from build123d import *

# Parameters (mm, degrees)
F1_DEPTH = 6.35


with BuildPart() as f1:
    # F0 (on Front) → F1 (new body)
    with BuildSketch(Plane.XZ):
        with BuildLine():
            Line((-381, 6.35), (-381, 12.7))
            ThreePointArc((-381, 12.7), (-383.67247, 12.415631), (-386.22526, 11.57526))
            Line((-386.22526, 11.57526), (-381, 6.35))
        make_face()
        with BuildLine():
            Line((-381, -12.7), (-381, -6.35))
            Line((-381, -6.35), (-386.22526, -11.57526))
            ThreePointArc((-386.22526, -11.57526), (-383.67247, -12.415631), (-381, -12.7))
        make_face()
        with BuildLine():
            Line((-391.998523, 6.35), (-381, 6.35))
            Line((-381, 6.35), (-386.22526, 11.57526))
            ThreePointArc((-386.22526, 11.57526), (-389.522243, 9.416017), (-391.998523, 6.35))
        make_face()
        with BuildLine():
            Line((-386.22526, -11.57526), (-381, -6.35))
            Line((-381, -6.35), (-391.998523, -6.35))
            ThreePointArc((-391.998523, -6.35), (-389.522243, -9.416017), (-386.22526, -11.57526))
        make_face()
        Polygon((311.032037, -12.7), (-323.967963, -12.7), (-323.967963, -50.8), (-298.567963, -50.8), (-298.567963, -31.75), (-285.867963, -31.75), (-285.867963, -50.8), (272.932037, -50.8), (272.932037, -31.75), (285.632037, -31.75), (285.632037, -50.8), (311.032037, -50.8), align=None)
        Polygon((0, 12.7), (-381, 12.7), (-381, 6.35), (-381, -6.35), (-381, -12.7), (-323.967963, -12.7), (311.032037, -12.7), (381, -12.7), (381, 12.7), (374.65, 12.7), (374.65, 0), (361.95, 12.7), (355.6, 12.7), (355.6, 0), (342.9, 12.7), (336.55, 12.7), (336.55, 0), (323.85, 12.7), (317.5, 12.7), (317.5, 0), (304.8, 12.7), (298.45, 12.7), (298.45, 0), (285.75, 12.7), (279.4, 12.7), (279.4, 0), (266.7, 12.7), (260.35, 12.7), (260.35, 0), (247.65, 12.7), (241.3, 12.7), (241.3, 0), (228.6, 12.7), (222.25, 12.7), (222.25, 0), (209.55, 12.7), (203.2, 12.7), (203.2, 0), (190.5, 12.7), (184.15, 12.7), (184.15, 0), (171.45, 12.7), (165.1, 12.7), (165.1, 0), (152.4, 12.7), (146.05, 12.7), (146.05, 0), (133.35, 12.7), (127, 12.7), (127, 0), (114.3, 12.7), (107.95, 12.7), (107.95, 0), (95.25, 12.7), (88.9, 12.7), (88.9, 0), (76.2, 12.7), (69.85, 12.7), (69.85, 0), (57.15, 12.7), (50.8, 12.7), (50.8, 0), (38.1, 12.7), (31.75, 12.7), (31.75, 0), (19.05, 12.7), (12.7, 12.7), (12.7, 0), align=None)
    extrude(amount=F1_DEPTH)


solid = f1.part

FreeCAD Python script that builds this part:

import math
import FreeCAD as App
import Part
import Sketcher
Q = App.Units.Quantity

doc = App.newDocument("Part")
params = doc.addObject("Spreadsheet::Sheet", "Params")
for row, (alias, value) in enumerate([
    ("sketch1_radius", "0.4999999 in"),
    ("sketch1_width", "22 in"),
    ("sketch1_width2", "15 in"),
    ("sketch1_height", "1.5 in"),
    ("sketch1_height2", "0.75 in"),
    ("pad1_length", "0.25 in"),
], start=1):
    params.set(f"A{row}", alias)
    params.set(f"B{row}", "=" + value)
    params.setAlias(f"B{row}", alias)

body = doc.addObject("PartDesign::Body", "Body")

sketch1 = doc.addObject("Sketcher::SketchObject", "Sketch")
body.addObject(sketch1)
sketch1.AttachmentSupport = (doc.XZ_Plane, [""])
sketch1.MapMode = "FlatFace"
sketch1.addGeometry(Part.ArcOfCircle(Part.Circle(App.Vector(-381, 0, 0), App.Vector(0, 0, 1), 13), math.radians(90), math.radians(114)), False)
sketch1.addGeometry(Part.ArcOfCircle(Part.Circle(App.Vector(-381, 0, 0), App.Vector(0, 0, 1), 13), math.radians(114), math.radians(150)), False)
sketch1.addGeometry(Part.LineSegment(App.Vector(-392, 6, 0), App.Vector(-381, 6, 0)), False)
sketch1.addGeometry(Part.LineSegment(App.Vector(-381, 6, 0), App.Vector(-381, -6, 0)), False)
sketch1.addGeometry(Part.LineSegment(App.Vector(-381, -6, 0), App.Vector(-392, -6, 0)), False)
sketch1.addGeometry(Part.ArcOfCircle(Part.Circle(App.Vector(-381, 0, 0), App.Vector(0, 0, 1), 13), math.radians(-150), math.radians(-114)), False)
sketch1.addGeometry(Part.ArcOfCircle(Part.Circle(App.Vector(-381, 0, 0), App.Vector(0, 0, 1), 13), math.radians(-114), math.radians(-90)), False)
sketch1.addGeometry(Part.LineSegment(App.Vector(-381, -13, 0), App.Vector(-324, -13, 0)), False)
sketch1.addGeometry(Part.LineSegment(App.Vector(-324, -13, 0), App.Vector(-324, -51, 0)), False)
sketch1.addGeometry(Part.LineSegment(App.Vector(-324, -51, 0), App.Vector(-299, -51, 0)), False)
sketch1.addGeometry(Part.LineSegment(App.Vector(-299, -51, 0), App.Vector(-299, -32, 0)), False)
sketch1.addGeometry(Part.LineSegment(App.Vector(-299, -32, 0), App.Vector(-286, -32, 0)), False)
sketch1.addGeometry(Part.LineSegment(App.Vector(-286, -32, 0), App.Vector(-286, -51, 0)), False)
sketch1.addGeometry(Part.LineSegment(App.Vector(-286, -51, 0), App.Vector(273, -51, 0)), False)
sketch1.addGeometry(Part.LineSegment(App.Vector(273, -51, 0), App.Vector(273, -32, 0)), False)
sketch1.addGeometry(Part.LineSegment(App.Vector(273, -32, 0), App.Vector(286, -32, 0)), False)
sketch1.addGeometry(Part.LineSegment(App.Vector(286, -32, 0), App.Vector(286, -51, 0)), False)
sketch1.addGeometry(Part.LineSegment(App.Vector(286, -51, 0), App.Vector(311, -51, 0)), False)
sketch1.addGeometry(Part.LineSegment(App.Vector(311, -51, 0), App.Vector(311, -13, 0)), False)
sketch1.addGeometry(Part.LineSegment(App.Vector(311, -13, 0), App.Vector(381, -13, 0)), False)
sketch1.addGeometry(Part.LineSegment(App.Vector(381, -13, 0), App.Vector(381, 13, 0)), False)
sketch1.addGeometry(Part.LineSegment(App.Vector(381, 13, 0), App.Vector(375, 13, 0)), False)
sketch1.addGeometry(Part.LineSegment(App.Vector(375, 13, 0), App.Vector(375, 0, 0)), False)
sketch1.addGeometry(Part.LineSegment(App.Vector(375, 0, 0), App.Vector(362, 13, 0)), False)
sketch1.addGeometry(Part.LineSegment(App.Vector(362, 13, 0), App.Vector(356, 13, 0)), False)
sketch1.addGeometry(Part.LineSegment(App.Vector(356, 13, 0), App.Vector(356, 0, 0)), False)
sketch1.addGeometry(Part.LineSegment(App.Vector(356, 0, 0), App.Vector(343, 13, 0)), False)
sketch1.addGeometry(Part.LineSegment(App.Vector(343, 13, 0), App.Vector(337, 13, 0)), False)
sketch1.addGeometry(Part.LineSegment(App.Vector(337, 13, 0), App.Vector(337, 0, 0)), False)
sketch1.addGeometry(Part.LineSegment(App.Vector(337, 0, 0), App.Vector(324, 13, 0)), False)
sketch1.addGeometry(Part.LineSegment(App.Vector(324, 13, 0), App.Vector(318, 13, 0)), False)
sketch1.addGeometry(Part.LineSegment(App.Vector(318, 13, 0), App.Vector(318, 0, 0)), False)
sketch1.addGeometry(Part.LineSegment(App.Vector(318, 0, 0), App.Vector(305, 13, 0)), False)
sketch1.addGeometry(Part.LineSegment(App.Vector(305, 13, 0), App.Vector(298, 13, 0)), False)
sketch1.addGeometry(Part.LineSegment(App.Vector(298, 13, 0), App.Vector(298, 0, 0)), False)
sketch1.addGeometry(Part.LineSegment(App.Vector(298, 0, 0), App.Vector(286, 13, 0)), False)
sketch1.addGeometry(Part.LineSegment(App.Vector(286, 13, 0), App.Vector(279, 13, 0)), False)
sketch1.addGeometry(Part.LineSegment(App.Vector(279, 13, 0), App.Vector(279, 0, 0)), False)
sketch1.addGeometry(Part.LineSegment(App.Vector(279, 0, 0), App.Vector(267, 13, 0)), False)
sketch1.addGeometry(Part.LineSegment(App.Vector(267, 13, 0), App.Vector(260, 13, 0)), False)
sketch1.addGeometry(Part.LineSegment(App.Vector(260, 13, 0), App.Vector(260, 0, 0)), False)
sketch1.addGeometry(Part.LineSegment(App.Vector(260, 0, 0), App.Vector(248, 13, 0)), False)
sketch1.addGeometry(Part.LineSegment(App.Vector(248, 13, 0), App.Vector(241, 13, 0)), False)
sketch1.addGeometry(Part.LineSegment(App.Vector(241, 13, 0), App.Vector(241, 0, 0)), False)
sketch1.addGeometry(Part.LineSegment(App.Vector(241, 0, 0), App.Vector(229, 13, 0)), False)
sketch1.addGeometry(Part.LineSegment(App.Vector(229, 13, 0), App.Vector(222, 13, 0)), False)
sketch1.addGeometry(Part.LineSegment(App.Vector(222, 13, 0), App.Vector(222, 0, 0)), False)
sketch1.addGeometry(Part.LineSegment(App.Vector(222, 0, 0), App.Vector(210, 13, 0)), False)
sketch1.addGeometry(Part.LineSegment(App.Vector(210, 13, 0), App.Vector(203, 13, 0)), False)
sketch1.addGeometry(Part.LineSegment(App.Vector(203, 13, 0), App.Vector(203, 0, 0)), False)
sketch1.addGeometry(Part.LineSegment(App.Vector(203, 0, 0), App.Vector(190, 13, 0)), False)
sketch1.addGeometry(Part.LineSegment(App.Vector(190, 13, 0), App.Vector(184, 13, 0)), False)
sketch1.addGeometry(Part.LineSegment(App.Vector(184, 13, 0), App.Vector(184, 0, 0)), False)
sketch1.addGeometry(Part.LineSegment(App.Vector(184, 0, 0), App.Vector(171, 13, 0)), False)
sketch1.addGeometry(Part.LineSegment(App.Vector(171, 13, 0), App.Vector(165, 13, 0)), False)
sketch1.addGeometry(Part.LineSegment(App.Vector(165, 13, 0), App.Vector(165, 0, 0)), False)
sketch1.addGeometry(Part.LineSegment(App.Vector(165, 0, 0), App.Vector(152, 13, 0)), False)
sketch1.addGeometry(Part.LineSegment(App.Vector(152, 13, 0), App.Vector(146, 13, 0)), False)
sketch1.addGeometry(Part.LineSegment(App.Vector(146, 13, 0), App.Vector(146, 0, 0)), False)
sketch1.addGeometry(Part.LineSegment(App.Vector(146, 0, 0), App.Vector(133, 13, 0)), False)
sketch1.addGeometry(Part.LineSegment(App.Vector(133, 13, 0), App.Vector(127, 13, 0)), False)
sketch1.addGeometry(Part.LineSegment(App.Vector(127, 13, 0), App.Vector(127, 0, 0)), False)
sketch1.addGeometry(Part.LineSegment(App.Vector(127, 0, 0), App.Vector(114, 13, 0)), False)
sketch1.addGeometry(Part.LineSegment(App.Vector(114, 13, 0), App.Vector(108, 13, 0)), False)
sketch1.addGeometry(Part.LineSegment(App.Vector(108, 13, 0), App.Vector(108, 0, 0)), False)
sketch1.addGeometry(Part.LineSegment(App.Vector(108, 0, 0), App.Vector(95, 13, 0)), False)
sketch1.addGeometry(Part.LineSegment(App.Vector(95, 13, 0), App.Vector(89, 13, 0)), False)
sketch1.addGeometry(Part.LineSegment(App.Vector(89, 13, 0), App.Vector(89, 0, 0)), False)
sketch1.addGeometry(Part.LineSegment(App.Vector(89, 0, 0), App.Vector(76, 13, 0)), False)
sketch1.addGeometry(Part.LineSegment(App.Vector(76, 13, 0), App.Vector(70, 13, 0)), False)
sketch1.addGeometry(Part.LineSegment(App.Vector(70, 13, 0), App.Vector(70, 0, 0)), False)
sketch1.addGeometry(Part.LineSegment(App.Vector(70, 0, 0), App.Vector(57, 13, 0)), False)
sketch1.addGeometry(Part.LineSegment(App.Vector(57, 13, 0), App.Vector(51, 13, 0)), False)
sketch1.addGeometry(Part.LineSegment(App.Vector(51, 13, 0), App.Vector(51, 0, 0)), False)
sketch1.addGeometry(Part.LineSegment(App.Vector(51, 0, 0), App.Vector(38, 13, 0)), False)
sketch1.addGeometry(Part.LineSegment(App.Vector(38, 13, 0), App.Vector(32, 13, 0)), False)
sketch1.addGeometry(Part.LineSegment(App.Vector(32, 13, 0), App.Vector(32, 0, 0)), False)
sketch1.addGeometry(Part.LineSegment(App.Vector(32, 0, 0), App.Vector(19, 13, 0)), False)
sketch1.addGeometry(Part.LineSegment(App.Vector(19, 13, 0), App.Vector(13, 13, 0)), False)
sketch1.addGeometry(Part.LineSegment(App.Vector(13, 13, 0), App.Vector(13, 0, 0)), False)
sketch1.addGeometry(Part.LineSegment(App.Vector(13, 0, 0), App.Vector(0, 13, 0)), False)
sketch1.addGeometry(Part.LineSegment(App.Vector(0, 13, 0), App.Vector(-381, 13, 0)), False)
sketch1.addConstraint(Sketcher.Constraint("Tangent", 0, 2, 1, 1))
sketch1.addConstraint(Sketcher.Constraint("Coincident", 1, 2, 2, 1))
sketch1.addConstraint(Sketcher.Constraint("Coincident", 2, 2, 3, 1))
sketch1.addConstraint(Sketcher.Constraint("Coincident", 3, 2, 4, 1))
sketch1.addConstraint(Sketcher.Constraint("Coincident", 4, 2, 5, 1))
sketch1.addConstraint(Sketcher.Constraint("Tangent", 5, 2, 6, 1))
sketch1.addConstraint(Sketcher.Constraint("Tangent", 6, 2, 7, 1))
sketch1.addConstraint(Sketcher.Constraint("Coincident", 7, 2, 8, 1))
sketch1.addConstraint(Sketcher.Constraint("Coincident", 8, 2, 9, 1))
sketch1.addConstraint(Sketcher.Constraint("Coincident", 9, 2, 10, 1))
sketch1.addConstraint(Sketcher.Constraint("Coincident", 10, 2, 11, 1))
sketch1.addConstraint(Sketcher.Constraint("Coincident", 11, 2, 12, 1))
sketch1.addConstraint(Sketcher.Constraint("Coincident", 12, 2, 13, 1))
sketch1.addConstraint(Sketcher.Constraint("Coincident", 13, 2, 14, 1))
sketch1.addConstraint(Sketcher.Constraint("Coincident", 14, 2, 15, 1))
sketch1.addConstraint(Sketcher.Constraint("Coincident", 15, 2, 16, 1))
sketch1.addConstraint(Sketcher.Constraint("Coincident", 16, 2, 17, 1))
sketch1.addConstraint(Sketcher.Constraint("Coincident", 17, 2, 18, 1))
sketch1.addConstraint(Sketcher.Constraint("Coincident", 18, 2, 19, 1))
sketch1.addConstraint(Sketcher.Constraint("Coincident", 19, 2, 20, 1))
sketch1.addConstraint(Sketcher.Constraint("Coincident", 20, 2, 21, 1))
sketch1.addConstraint(Sketcher.Constraint("Coincident", 21, 2, 22, 1))
sketch1.addConstraint(Sketcher.Constraint("Coincident", 22, 2, 23, 1))
sketch1.addConstraint(Sketcher.Constraint("Coincident", 23, 2, 24, 1))
sketch1.addConstraint(Sketcher.Constraint("Coincident", 24, 2, 25, 1))
sketch1.addConstraint(Sketcher.Constraint("Coincident", 25, 2, 26, 1))
sketch1.addConstraint(Sketcher.Constraint("Coincident", 26, 2, 27, 1))
sketch1.addConstraint(Sketcher.Constraint("Coincident", 27, 2, 28, 1))
sketch1.addConstraint(Sketcher.Constraint("Coincident", 28, 2, 29, 1))
sketch1.addConstraint(Sketcher.Constraint("Coincident", 29, 2, 30, 1))
sketch1.addConstraint(Sketcher.Constraint("Coincident", 30, 2, 31, 1))
sketch1.addConstraint(Sketcher.Constraint("Coincident", 31, 2, 32, 1))
sketch1.addConstraint(Sketcher.Constraint("Coincident", 32, 2, 33, 1))
sketch1.addConstraint(Sketcher.Constraint("Coincident", 33, 2, 34, 1))
sketch1.addConstraint(Sketcher.Constraint("Coincident", 34, 2, 35, 1))
sketch1.addConstraint(Sketcher.Constraint("Coincident", 35, 2, 36, 1))
sketch1.addConstraint(Sketcher.Constraint("Coincident", 36, 2, 37, 1))
sketch1.addConstraint(Sketcher.Constraint("Coincident", 37, 2, 38, 1))
sketch1.addConstraint(Sketcher.Constraint("Coincident", 38, 2, 39, 1))
sketch1.addConstraint(Sketcher.Constraint("Coincident", 39, 2, 40, 1))
sketch1.addConstraint(Sketcher.Constraint("Coincident", 40, 2, 41, 1))
sketch1.addConstraint(Sketcher.Constraint("Coincident", 41, 2, 42, 1))
sketch1.addConstraint(Sketcher.Constraint("Coincident", 42, 2, 43, 1))
sketch1.addConstraint(Sketcher.Constraint("Coincident", 43, 2, 44, 1))
sketch1.addConstraint(Sketcher.Constraint("Coincident", 44, 2, 45, 1))
sketch1.addConstraint(Sketcher.Constraint("Coincident", 45, 2, 46, 1))
sketch1.addConstraint(Sketcher.Constraint("Coincident", 46, 2, 47, 1))
sketch1.addConstraint(Sketcher.Constraint("Coincident", 47, 2, 48, 1))
sketch1.addConstraint(Sketcher.Constraint("Coincident", 48, 2, 49, 1))
sketch1.addConstraint(Sketcher.Constraint("Coincident", 49, 2, 50, 1))
sketch1.addConstraint(Sketcher.Constraint("Coincident", 50, 2, 51, 1))
sketch1.addConstraint(Sketcher.Constraint("Coincident", 51, 2, 52, 1))
sketch1.addConstraint(Sketcher.Constraint("Coincident", 52, 2, 53, 1))
sketch1.addConstraint(Sketcher.Constraint("Coincident", 53, 2, 54, 1))
sketch1.addConstraint(Sketcher.Constraint("Coincident", 54, 2, 55, 1))
sketch1.addConstraint(Sketcher.Constraint("Coincident", 55, 2, 56, 1))
sketch1.addConstraint(Sketcher.Constraint("Coincident", 56, 2, 57, 1))
sketch1.addConstraint(Sketcher.Constraint("Coincident", 57, 2, 58, 1))
sketch1.addConstraint(Sketcher.Constraint("Coincident", 58, 2, 59, 1))
sketch1.addConstraint(Sketcher.Constraint("Coincident", 59, 2, 60, 1))
sketch1.addConstraint(Sketcher.Constraint("Coincident", 60, 2, 61, 1))
sketch1.addConstraint(Sketcher.Constraint("Coincident", 61, 2, 62, 1))
sketch1.addConstraint(Sketcher.Constraint("Coincident", 62, 2, 63, 1))
sketch1.addConstraint(Sketcher.Constraint("Coincident", 63, 2, 64, 1))
sketch1.addConstraint(Sketcher.Constraint("Coincident", 64, 2, 65, 1))
sketch1.addConstraint(Sketcher.Constraint("Coincident", 65, 2, 66, 1))
sketch1.addConstraint(Sketcher.Constraint("Coincident", 66, 2, 67, 1))
sketch1.addConstraint(Sketcher.Constraint("Coincident", 67, 2, 68, 1))
sketch1.addConstraint(Sketcher.Constraint("Coincident", 68, 2, 69, 1))
sketch1.addConstraint(Sketcher.Constraint("Coincident", 69, 2, 70, 1))
sketch1.addConstraint(Sketcher.Constraint("Coincident", 70, 2, 71, 1))
sketch1.addConstraint(Sketcher.Constraint("Coincident", 71, 2, 72, 1))
sketch1.addConstraint(Sketcher.Constraint("Coincident", 72, 2, 73, 1))
sketch1.addConstraint(Sketcher.Constraint("Coincident", 73, 2, 74, 1))
sketch1.addConstraint(Sketcher.Constraint("Coincident", 74, 2, 75, 1))
sketch1.addConstraint(Sketcher.Constraint("Coincident", 75, 2, 76, 1))
sketch1.addConstraint(Sketcher.Constraint("Coincident", 76, 2, 77, 1))
sketch1.addConstraint(Sketcher.Constraint("Coincident", 77, 2, 78, 1))
sketch1.addConstraint(Sketcher.Constraint("Coincident", 78, 2, 79, 1))
sketch1.addConstraint(Sketcher.Constraint("Coincident", 79, 2, 80, 1))
sketch1.addConstraint(Sketcher.Constraint("Coincident", 80, 2, 81, 1))
sketch1.addConstraint(Sketcher.Constraint("Tangent", 81, 2, 0, 1))
sketch1.addConstraint(Sketcher.Constraint("Horizontal", 2))
sketch1.addConstraint(Sketcher.Constraint("Vertical", 3))
sketch1.addConstraint(Sketcher.Constraint("Horizontal", 4))
sketch1.addConstraint(Sketcher.Constraint("Horizontal", 7))
sketch1.addConstraint(Sketcher.Constraint("Vertical", 8))
sketch1.addConstraint(Sketcher.Constraint("Horizontal", 9))
sketch1.addConstraint(Sketcher.Constraint("Vertical", 10))
sketch1.addConstraint(Sketcher.Constraint("Horizontal", 11))
sketch1.addConstraint(Sketcher.Constraint("Vertical", 12))
sketch1.addConstraint(Sketcher.Constraint("Horizontal", 13))
sketch1.addConstraint(Sketcher.Constraint("Vertical", 14))
sketch1.addConstraint(Sketcher.Constraint("Horizontal", 15))
sketch1.addConstraint(Sketcher.Constraint("Vertical", 16))
sketch1.addConstraint(Sketcher.Constraint("Horizontal", 17))
sketch1.addConstraint(Sketcher.Constraint("Vertical", 18))
sketch1.addConstraint(Sketcher.Constraint("Horizontal", 19))
sketch1.addConstraint(Sketcher.Constraint("Vertical", 20))
sketch1.addConstraint(Sketcher.Constraint("Horizontal", 21))
sketch1.addConstraint(Sketcher.Constraint("Vertical", 22))
sketch1.addConstraint(Sketcher.Constraint("Horizontal", 24))
sketch1.addConstraint(Sketcher.Constraint("Vertical", 25))
sketch1.addConstraint(Sketcher.Constraint("Horizontal", 27))
sketch1.addConstraint(Sketcher.Constraint("Vertical", 28))
sketch1.addConstraint(Sketcher.Constraint("Horizontal", 30))
sketch1.addConstraint(Sketcher.Constraint("Vertical", 31))
sketch1.addConstraint(Sketcher.Constraint("Horizontal", 33))
sketch1.addConstraint(Sketcher.Constraint("Vertical", 34))
sketch1.addConstraint(Sketcher.Constraint("Horizontal", 36))
sketch1.addConstraint(Sketcher.Constraint("Vertical", 37))
sketch1.addConstraint(Sketcher.Constraint("Horizontal", 39))
sketch1.addConstraint(Sketcher.Constraint("Vertical", 40))
sketch1.addConstraint(Sketcher.Constraint("Horizontal", 42))
sketch1.addConstraint(Sketcher.Constraint("Vertical", 43))
sketch1.addConstraint(Sketcher.Constraint("Horizontal", 45))
sketch1.addConstraint(Sketcher.Constraint("Vertical", 46))
sketch1.addConstraint(Sketcher.Constraint("Horizontal", 48))
sketch1.addConstraint(Sketcher.Constraint("Vertical", 49))
sketch1.addConstraint(Sketcher.Constraint("Horizontal", 51))
sketch1.addConstraint(Sketcher.Constraint("Vertical", 52))
sketch1.addConstraint(Sketcher.Constraint("Horizontal", 54))
sketch1.addConstraint(Sketcher.Constraint("Vertical", 55))
sketch1.addConstraint(Sketcher.Constraint("Horizontal", 57))
sketch1.addConstraint(Sketcher.Constraint("Vertical", 58))
sketch1.addConstraint(Sketcher.Constraint("Horizontal", 60))
sketch1.addConstraint(Sketcher.Constraint("Vertical", 61))
sketch1.addConstraint(Sketcher.Constraint("Horizontal", 63))
sketch1.addConstraint(Sketcher.Constraint("Vertical", 64))
sketch1.addConstraint(Sketcher.Constraint("Horizontal", 66))
sketch1.addConstraint(Sketcher.Constraint("Vertical", 67))
sketch1.addConstraint(Sketcher.Constraint("Horizontal", 69))
sketch1.addConstraint(Sketcher.Constraint("Vertical", 70))
sketch1.addConstraint(Sketcher.Constraint("Horizontal", 72))
sketch1.addConstraint(Sketcher.Constraint("Vertical", 73))
sketch1.addConstraint(Sketcher.Constraint("Horizontal", 75))
sketch1.addConstraint(Sketcher.Constraint("Vertical", 76))
sketch1.addConstraint(Sketcher.Constraint("Horizontal", 78))
sketch1.addConstraint(Sketcher.Constraint("Vertical", 79))
sketch1.addConstraint(Sketcher.Constraint("Horizontal", 81))
sketch1.addConstraint(Sketcher.Constraint("Coincident", 5, 3, 0, 3))
sketch1.addConstraint(Sketcher.Constraint("Coincident", 6, 3, 1, 3))
sketch1.addConstraint(Sketcher.Constraint("Equal", 1, 5))
sketch1.addConstraint(Sketcher.Constraint("Symmetric", 6, 2, 20, 2, -1, 1))
sketch1.addConstraint(Sketcher.Constraint("Symmetric", 1, 2, 4, 2, -1))
sketch1.addConstraint(Sketcher.Constraint("PointOnObject", 22, 2, -1))
sketch1.addConstraint(Sketcher.Constraint("PointOnObject", 25, 2, -1))
sketch1.addConstraint(Sketcher.Constraint("PointOnObject", 28, 2, -1))
sketch1.addConstraint(Sketcher.Constraint("PointOnObject", 31, 2, -1))
sketch1.addConstraint(Sketcher.Constraint("PointOnObject", 34, 2, -1))
sketch1.addConstraint(Sketcher.Constraint("PointOnObject", 37, 2, -1))
sketch1.addConstraint(Sketcher.Constraint("PointOnObject", 40, 2, -1))
sketch1.addConstraint(Sketcher.Constraint("PointOnObject", 43, 2, -1))
sketch1.addConstraint(Sketcher.Constraint("PointOnObject", 46, 2, -1))
sketch1.addConstraint(Sketcher.Constraint("PointOnObject", 49, 2, -1))
sketch1.addConstraint(Sketcher.Constraint("PointOnObject", 52, 2, -1))
sketch1.addConstraint(Sketcher.Constraint("PointOnObject", 55, 2, -1))
sketch1.addConstraint(Sketcher.Constraint("PointOnObject", 58, 2, -1))
sketch1.addConstraint(Sketcher.Constraint("PointOnObject", 61, 2, -1))
sketch1.addConstraint(Sketcher.Constraint("PointOnObject", 64, 2, -1))
sketch1.addConstraint(Sketcher.Constraint("PointOnObject", 67, 2, -1))
sketch1.addConstraint(Sketcher.Constraint("PointOnObject", 70, 2, -1))
sketch1.addConstraint(Sketcher.Constraint("PointOnObject", 73, 2, -1))
sketch1.addConstraint(Sketcher.Constraint("PointOnObject", 76, 2, -1))
sketch1.addConstraint(Sketcher.Constraint("PointOnObject", 79, 2, -1))
sketch1.addConstraint(Sketcher.Constraint("PointOnObject", 80, 2, -2))
sketch1.addConstraint(Sketcher.Constraint("Parallel", 23, 26))
sketch1.addConstraint(Sketcher.Constraint("Parallel", 26, 29))
sketch1.addConstraint(Sketcher.Constraint("Parallel", 29, 32))
sketch1.addConstraint(Sketcher.Constraint("Parallel", 32, 35))
sketch1.addConstraint(Sketcher.Constraint("Parallel", 35, 38))
sketch1.addConstraint(Sketcher.Constraint("Parallel", 38, 41))
sketch1.addConstraint(Sketcher.Constraint("Parallel", 41, 44))
sketch1.addConstraint(Sketcher.Constraint("Parallel", 44, 47))
sketch1.addConstraint(Sketcher.Constraint("Parallel", 47, 50))
sketch1.addConstraint(Sketcher.Constraint("Parallel", 50, 53))
sketch1.addConstraint(Sketcher.Constraint("Parallel", 53, 56))
sketch1.addConstraint(Sketcher.Constraint("Parallel", 56, 59))
sketch1.addConstraint(Sketcher.Constraint("Parallel", 59, 62))
sketch1.addConstraint(Sketcher.Constraint("Parallel", 62, 65))
sketch1.addConstraint(Sketcher.Constraint("Parallel", 65, 68))
sketch1.addConstraint(Sketcher.Constraint("Parallel", 68, 71))
sketch1.addConstraint(Sketcher.Constraint("Parallel", 71, 74))
sketch1.addConstraint(Sketcher.Constraint("Parallel", 74, 77))
sketch1.addConstraint(Sketcher.Constraint("Parallel", 77, 80))
sketch1.addConstraint(Sketcher.Constraint("Horizontal", 9, 2, 12, 2))
sketch1.addConstraint(Sketcher.Constraint("Horizontal", 11, 2, 14, 2))
sketch1.addConstraint(Sketcher.Constraint("Horizontal", 13, 2, 16, 2))
sketch1.addConstraint(Sketcher.Constraint("Horizontal", 7, 2, 18, 2))
sketch1.addConstraint(Sketcher.Constraint("Horizontal", 21, 2, 23, 2))
sketch1.addConstraint(Sketcher.Constraint("Horizontal", 24, 2, 26, 2))
sketch1.addConstraint(Sketcher.Constraint("Horizontal", 27, 2, 29, 2))
sketch1.addConstraint(Sketcher.Constraint("Horizontal", 30, 2, 32, 2))
sketch1.addConstraint(Sketcher.Constraint("Horizontal", 33, 2, 35, 2))
sketch1.addConstraint(Sketcher.Constraint("Horizontal", 36, 2, 38, 2))
sketch1.addConstraint(Sketcher.Constraint("Horizontal", 39, 2, 41, 2))
sketch1.addConstraint(Sketcher.Constraint("Horizontal", 42, 2, 44, 2))
sketch1.addConstraint(Sketcher.Constraint("Horizontal", 45, 2, 47, 2))
sketch1.addConstraint(Sketcher.Constraint("Horizontal", 48, 2, 50, 2))
sketch1.addConstraint(Sketcher.Constraint("Horizontal", 51, 2, 53, 2))
sketch1.addConstraint(Sketcher.Constraint("Horizontal", 54, 2, 56, 2))
sketch1.addConstraint(Sketcher.Constraint("Horizontal", 57, 2, 59, 2))
sketch1.addConstraint(Sketcher.Constraint("Horizontal", 60, 2, 62, 2))
sketch1.addConstraint(Sketcher.Constraint("Horizontal", 63, 2, 65, 2))
sketch1.addConstraint(Sketcher.Constraint("Horizontal", 66, 2, 68, 2))
sketch1.addConstraint(Sketcher.Constraint("Horizontal", 69, 2, 71, 2))
sketch1.addConstraint(Sketcher.Constraint("Horizontal", 72, 2, 74, 2))
sketch1.addConstraint(Sketcher.Constraint("Horizontal", 75, 2, 77, 2))
sketch1.addConstraint(Sketcher.Constraint("Vertical", 0, 2, 5, 2))
sketch1.addConstraint(Sketcher.Constraint("Vertical", 3, 2, 6, 2))
sketch1.addConstraint(Sketcher.Constraint("Equal", 11, 15))
sketch1.addConstraint(Sketcher.Constraint("Equal", 9, 17))
sketch1.addConstraint(Sketcher.Constraint("Equal", 21, 24))
sketch1.addConstraint(Sketcher.Constraint("Equal", 24, 27))
sketch1.addConstraint(Sketcher.Constraint("Equal", 27, 30))
sketch1.addConstraint(Sketcher.Constraint("Equal", 30, 33))
sketch1.addConstraint(Sketcher.Constraint("Equal", 33, 36))
sketch1.addConstraint(Sketcher.Constraint("Equal", 36, 39))
sketch1.addConstraint(Sketcher.Constraint("Equal", 39, 42))
sketch1.addConstraint(Sketcher.Constraint("Equal", 42, 45))
sketch1.addConstraint(Sketcher.Constraint("Equal", 45, 48))
sketch1.addConstraint(Sketcher.Constraint("Equal", 48, 51))
sketch1.addConstraint(Sketcher.Constraint("Equal", 51, 54))
sketch1.addConstraint(Sketcher.Constraint("Equal", 54, 57))
sketch1.addConstraint(Sketcher.Constraint("Equal", 57, 60))
sketch1.addConstraint(Sketcher.Constraint("Equal", 60, 63))
sketch1.addConstraint(Sketcher.Constraint("Equal", 63, 66))
sketch1.addConstraint(Sketcher.Constraint("Equal", 66, 69))
sketch1.addConstraint(Sketcher.Constraint("Equal", 69, 72))
sketch1.addConstraint(Sketcher.Constraint("Equal", 72, 75))
sketch1.addConstraint(Sketcher.Constraint("Equal", 75, 78))
sketch1.addConstraint(Sketcher.Constraint("Equal", 15, 3))
sketch1.addConstraint(Sketcher.Constraint("Equal", 17, 20))
sketch1.addConstraint(Sketcher.Constraint("Equal", 3, 22))
sketch1.addConstraint(Sketcher.Constraint("Radius", 1, Q("0.4999999 in")))
sketch1.addConstraint(Sketcher.Constraint("DistanceX", 13, 1, 13, 2, Q("22 in")))
sketch1.addConstraint(Sketcher.Constraint("DistanceX", 81, 2, 81, 1, Q("15 in")))
sketch1.addConstraint(Sketcher.Constraint("DistanceY", 8, 2, 8, 1, Q("1.5 in")))
sketch1.addConstraint(Sketcher.Constraint("DistanceX", -1, 1, 24, 2, Q("14 in")))
sketch1.addConstraint(Sketcher.Constraint("DistanceY", 10, 1, 10, 2, Q("0.75 in")))
sketch1.addConstraint(Sketcher.Constraint("DistanceX", 7, 1, 7, 2, Q("57.032037 mm")))
sketch1.addConstraint(Sketcher.Constraint("DistanceX", 0, 2, -1, 1, Q("386.22526 mm")))
sketch1.setExpression("Constraints[234]", "Params.sketch1_radius")
sketch1.setExpression("Constraints[235]", "Params.sketch1_width")
sketch1.setExpression("Constraints[236]", "Params.sketch1_width2")
sketch1.setExpression("Constraints[237]", "Params.sketch1_height")
sketch1.setExpression("Constraints[239]", "Params.sketch1_height2")
pad1 = doc.addObject("PartDesign::Pad", "Pad")
body.addObject(pad1)
pad1.Profile = sketch1
pad1.setExpression("Length", "Params.pad1_length")

doc.recompute()
